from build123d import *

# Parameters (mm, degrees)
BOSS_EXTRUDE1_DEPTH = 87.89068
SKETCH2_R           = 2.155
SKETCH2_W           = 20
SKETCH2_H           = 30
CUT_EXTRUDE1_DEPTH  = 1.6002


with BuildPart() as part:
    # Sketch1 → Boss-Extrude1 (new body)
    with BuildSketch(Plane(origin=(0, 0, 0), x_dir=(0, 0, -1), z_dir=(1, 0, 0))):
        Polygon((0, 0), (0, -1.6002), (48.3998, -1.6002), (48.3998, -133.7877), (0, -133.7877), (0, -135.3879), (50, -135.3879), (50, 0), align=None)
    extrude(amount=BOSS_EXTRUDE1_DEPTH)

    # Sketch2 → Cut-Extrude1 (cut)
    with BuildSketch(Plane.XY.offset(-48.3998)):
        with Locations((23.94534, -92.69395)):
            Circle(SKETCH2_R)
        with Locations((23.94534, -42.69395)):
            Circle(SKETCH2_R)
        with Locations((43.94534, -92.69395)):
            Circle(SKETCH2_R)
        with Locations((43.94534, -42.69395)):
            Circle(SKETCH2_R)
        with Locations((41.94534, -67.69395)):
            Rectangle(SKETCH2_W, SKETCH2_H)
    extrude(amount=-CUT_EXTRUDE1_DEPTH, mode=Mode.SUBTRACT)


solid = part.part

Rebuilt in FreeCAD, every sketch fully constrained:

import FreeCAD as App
import Part
import Sketcher

V = App.Vector
Q = App.Units.Quantity

doc = App.newDocument("Part")
body = doc.addObject("PartDesign::Body", "Body")

# Sketch on YZ plane
sketch1 = body.newObject("Sketcher::SketchObject", "Sketch")
sketch1.AttachmentSupport = (doc.getObject("YZ_Plane"), [""])
sketch1.MapMode = "FlatFace"
sketch1.addGeometry(Part.LineSegment(V(0, 0, 0), V(-1.6, 0, 0)), False)
sketch1.addGeometry(Part.LineSegment(V(-1.6, 0, 0), V(-1.6, -48.4, 0)), False)
sketch1.addGeometry(Part.LineSegment(V(-1.6, -48.4, 0), V(-133.8, -48.4, 0)), False)
sketch1.addGeometry(Part.LineSegment(V(-133.8, -48.4, 0), V(-133.8, 0, 0)), False)
sketch1.addGeometry(Part.LineSegment(V(-133.8, 0, 0), V(-135.4, 0, 0)), False)
sketch1.addGeometry(Part.LineSegment(V(-135.4, 0, 0), V(-135.4, -50, 0)), False)
sketch1.addGeometry(Part.LineSegment(V(-135.4, -50, 0), V(0, -50, 0)), False)
sketch1.addGeometry(Part.LineSegment(V(0, -50, 0), V(0, 0, 0)), False)
sketch1.addConstraint(Sketcher.Constraint("Coincident", 0, 2, 1, 1))
sketch1.addConstraint(Sketcher.Constraint("Coincident", 1, 2, 2, 1))
sketch1.addConstraint(Sketcher.Constraint("Coincident", 2, 2, 3, 1))
sketch1.addConstraint(Sketcher.Constraint("Coincident", 3, 2, 4, 1))
sketch1.addConstraint(Sketcher.Constraint("Coincident", 4, 2, 5, 1))
sketch1.addConstraint(Sketcher.Constraint("Coincident", 5, 2, 6, 1))
sketch1.addConstraint(Sketcher.Constraint("Coincident", 6, 2, 7, 1))
sketch1.addConstraint(Sketcher.Constraint("Coincident", 7, 2, 0, 1))
sketch1.addConstraint(Sketcher.Constraint("Horizontal", 0))
sketch1.addConstraint(Sketcher.Constraint("Vertical", 1))
sketch1.addConstraint(Sketcher.Constraint("Horizontal", 2))
sketch1.addConstraint(Sketcher.Constraint("Vertical", 3))
sketch1.addConstraint(Sketcher.Constraint("Horizontal", 4))
sketch1.addConstraint(Sketcher.Constraint("Vertical", 5))
sketch1.addConstraint(Sketcher.Constraint("Horizontal", 6))
sketch1.addConstraint(Sketcher.Constraint("Vertical", 7))
sketch1.addConstraint(Sketcher.Constraint("Coincident", 7, 2, -1, 1))
sketch1.addConstraint(Sketcher.Constraint("PointOnObject", 3, 2, -1))
sketch1.addConstraint(Sketcher.Constraint("Equal", 0, 4))
sketch1.addConstraint(Sketcher.Constraint("DistanceY", 5, 2, 5, 1, Q("50 mm")))
sketch1.addConstraint(Sketcher.Constraint("DistanceX", 0, 2, 0, 1, Q("1.6002 mm")))
sketch1.addConstraint(Sketcher.Constraint("DistanceX", 2, 2, 2, 1, Q("132.1875 mm")))
sketch1.addConstraint(Sketcher.Constraint("DistanceY", 1, 2, 1, 1, Q("48.3998 mm")))
pad1 = body.newObject("PartDesign::Pad", "Pad")
pad1.Profile = sketch1
pad1.Length = 87.89068

# Sketch on XY plane
sketch2 = body.newObject("Sketcher::SketchObject", "Sketch001")
sketch2.AttachmentSupport = (doc.getObject("XY_Plane"), [""])
sketch2.MapMode = "FlatFace"
sketch2.AttachmentOffset = App.Placement(V(0, 0, -48.3998), App.Rotation())
sketch2.addGeometry(Part.Circle(V(23.9, -92.7, 0), V(0, 0, 1), 2.2), False)
sketch2.addGeometry(Part.Circle(V(23.9, -42.7, 0), V(0, 0, 1), 2.2), False)
sketch2.addGeometry(Part.Circle(V(43.9, -92.7, 0), V(0, 0, 1), 2.2), False)
sketch2.addGeometry(Part.Circle(V(43.9, -42.7, 0), V(0, 0, 1), 2.2), False)
sketch2.addGeometry(Part.LineSegment(V(31.9, -52.7, 0), V(31.9, -82.7, 0)), False)
sketch2.addGeometry(Part.LineSegment(V(31.9, -82.7, 0), V(51.9, -82.7, 0)), False)
sketch2.addGeometry(Part.LineSegment(V(51.9, -82.7, 0), V(51.9, -52.7, 0)), False)
sketch2.addGeometry(Part.LineSegment(V(51.9, -52.7, 0), V(31.9, -52.7, 0)), False)
sketch2.addConstraint(Sketcher.Constraint("Coincident", 4, 2, 5, 1))
sketch2.addConstraint(Sketcher.Constraint("Coincident", 5, 2, 6, 1))
sketch2.addConstraint(Sketcher.Constraint("Coincident", 6, 2, 7, 1))
sketch2.addConstraint(Sketcher.Constraint("Coincident", 7, 2, 4, 1))
sketch2.addConstraint(Sketcher.Constraint("Vertical", 4))
sketch2.addConstraint(Sketcher.Constraint("Horizontal", 5))
sketch2.addConstraint(Sketcher.Constraint("Vertical", 6))
sketch2.addConstraint(Sketcher.Constraint("Horizontal", 7))
sketch2.addConstraint(Sketcher.Constraint("Equal", 0, 1))
sketch2.addConstraint(Sketcher.Constraint("Equal", 1, 2))
sketch2.addConstraint(Sketcher.Constraint("Equal", 2, 3))
sketch2.addConstraint(Sketcher.Constraint("Horizontal", 0, 3, 2, 3))
sketch2.addConstraint(Sketcher.Constraint("Horizontal", 1, 3, 3, 3))
sketch2.addConstraint(Sketcher.Constraint("Vertical", 0, 3, 1, 3))
sketch2.addConstraint(Sketcher.Constraint("Vertical", 2, 3, 3, 3))
sketch2.addConstraint(Sketcher.Constraint("Diameter", 0, Q("4.31 mm")))
sketch2.addConstraint(Sketcher.Constraint("DistanceX", 5, 1, 5, 2, Q("20 mm")))
sketch2.addConstraint(Sketcher.Constraint("DistanceY", 4, 2, 4, 1, Q("30 mm")))
sketch2.addConstraint(Sketcher.Constraint("DistanceY", 0, 3, 1, 3, Q("50 mm")))
sketch2.addConstraint(Sketcher.Constraint("DistanceX", 0, 3, 2, 3, Q("20 mm")))
sketch2.addConstraint(Sketcher.Constraint("DistanceX", 0, 3, 4, 2, Q("8 mm")))
sketch2.addConstraint(Sketcher.Constraint("DistanceY", 0, 3, 4, 2, Q("10 mm")))
sketch2.addConstraint(Sketcher.Constraint("DistanceX", -1, 1, 0, 3, Q("23.94534 mm")))
sketch2.addConstraint(Sketcher.Constraint("DistanceY", 0, 3, -1, 1, Q("92.69395 mm")))
pocket1 = body.newObject("PartDesign::Pocket", "Pocket")
pocket1.Profile = sketch2
pocket1.Length = 1.6002

doc.recompute()
